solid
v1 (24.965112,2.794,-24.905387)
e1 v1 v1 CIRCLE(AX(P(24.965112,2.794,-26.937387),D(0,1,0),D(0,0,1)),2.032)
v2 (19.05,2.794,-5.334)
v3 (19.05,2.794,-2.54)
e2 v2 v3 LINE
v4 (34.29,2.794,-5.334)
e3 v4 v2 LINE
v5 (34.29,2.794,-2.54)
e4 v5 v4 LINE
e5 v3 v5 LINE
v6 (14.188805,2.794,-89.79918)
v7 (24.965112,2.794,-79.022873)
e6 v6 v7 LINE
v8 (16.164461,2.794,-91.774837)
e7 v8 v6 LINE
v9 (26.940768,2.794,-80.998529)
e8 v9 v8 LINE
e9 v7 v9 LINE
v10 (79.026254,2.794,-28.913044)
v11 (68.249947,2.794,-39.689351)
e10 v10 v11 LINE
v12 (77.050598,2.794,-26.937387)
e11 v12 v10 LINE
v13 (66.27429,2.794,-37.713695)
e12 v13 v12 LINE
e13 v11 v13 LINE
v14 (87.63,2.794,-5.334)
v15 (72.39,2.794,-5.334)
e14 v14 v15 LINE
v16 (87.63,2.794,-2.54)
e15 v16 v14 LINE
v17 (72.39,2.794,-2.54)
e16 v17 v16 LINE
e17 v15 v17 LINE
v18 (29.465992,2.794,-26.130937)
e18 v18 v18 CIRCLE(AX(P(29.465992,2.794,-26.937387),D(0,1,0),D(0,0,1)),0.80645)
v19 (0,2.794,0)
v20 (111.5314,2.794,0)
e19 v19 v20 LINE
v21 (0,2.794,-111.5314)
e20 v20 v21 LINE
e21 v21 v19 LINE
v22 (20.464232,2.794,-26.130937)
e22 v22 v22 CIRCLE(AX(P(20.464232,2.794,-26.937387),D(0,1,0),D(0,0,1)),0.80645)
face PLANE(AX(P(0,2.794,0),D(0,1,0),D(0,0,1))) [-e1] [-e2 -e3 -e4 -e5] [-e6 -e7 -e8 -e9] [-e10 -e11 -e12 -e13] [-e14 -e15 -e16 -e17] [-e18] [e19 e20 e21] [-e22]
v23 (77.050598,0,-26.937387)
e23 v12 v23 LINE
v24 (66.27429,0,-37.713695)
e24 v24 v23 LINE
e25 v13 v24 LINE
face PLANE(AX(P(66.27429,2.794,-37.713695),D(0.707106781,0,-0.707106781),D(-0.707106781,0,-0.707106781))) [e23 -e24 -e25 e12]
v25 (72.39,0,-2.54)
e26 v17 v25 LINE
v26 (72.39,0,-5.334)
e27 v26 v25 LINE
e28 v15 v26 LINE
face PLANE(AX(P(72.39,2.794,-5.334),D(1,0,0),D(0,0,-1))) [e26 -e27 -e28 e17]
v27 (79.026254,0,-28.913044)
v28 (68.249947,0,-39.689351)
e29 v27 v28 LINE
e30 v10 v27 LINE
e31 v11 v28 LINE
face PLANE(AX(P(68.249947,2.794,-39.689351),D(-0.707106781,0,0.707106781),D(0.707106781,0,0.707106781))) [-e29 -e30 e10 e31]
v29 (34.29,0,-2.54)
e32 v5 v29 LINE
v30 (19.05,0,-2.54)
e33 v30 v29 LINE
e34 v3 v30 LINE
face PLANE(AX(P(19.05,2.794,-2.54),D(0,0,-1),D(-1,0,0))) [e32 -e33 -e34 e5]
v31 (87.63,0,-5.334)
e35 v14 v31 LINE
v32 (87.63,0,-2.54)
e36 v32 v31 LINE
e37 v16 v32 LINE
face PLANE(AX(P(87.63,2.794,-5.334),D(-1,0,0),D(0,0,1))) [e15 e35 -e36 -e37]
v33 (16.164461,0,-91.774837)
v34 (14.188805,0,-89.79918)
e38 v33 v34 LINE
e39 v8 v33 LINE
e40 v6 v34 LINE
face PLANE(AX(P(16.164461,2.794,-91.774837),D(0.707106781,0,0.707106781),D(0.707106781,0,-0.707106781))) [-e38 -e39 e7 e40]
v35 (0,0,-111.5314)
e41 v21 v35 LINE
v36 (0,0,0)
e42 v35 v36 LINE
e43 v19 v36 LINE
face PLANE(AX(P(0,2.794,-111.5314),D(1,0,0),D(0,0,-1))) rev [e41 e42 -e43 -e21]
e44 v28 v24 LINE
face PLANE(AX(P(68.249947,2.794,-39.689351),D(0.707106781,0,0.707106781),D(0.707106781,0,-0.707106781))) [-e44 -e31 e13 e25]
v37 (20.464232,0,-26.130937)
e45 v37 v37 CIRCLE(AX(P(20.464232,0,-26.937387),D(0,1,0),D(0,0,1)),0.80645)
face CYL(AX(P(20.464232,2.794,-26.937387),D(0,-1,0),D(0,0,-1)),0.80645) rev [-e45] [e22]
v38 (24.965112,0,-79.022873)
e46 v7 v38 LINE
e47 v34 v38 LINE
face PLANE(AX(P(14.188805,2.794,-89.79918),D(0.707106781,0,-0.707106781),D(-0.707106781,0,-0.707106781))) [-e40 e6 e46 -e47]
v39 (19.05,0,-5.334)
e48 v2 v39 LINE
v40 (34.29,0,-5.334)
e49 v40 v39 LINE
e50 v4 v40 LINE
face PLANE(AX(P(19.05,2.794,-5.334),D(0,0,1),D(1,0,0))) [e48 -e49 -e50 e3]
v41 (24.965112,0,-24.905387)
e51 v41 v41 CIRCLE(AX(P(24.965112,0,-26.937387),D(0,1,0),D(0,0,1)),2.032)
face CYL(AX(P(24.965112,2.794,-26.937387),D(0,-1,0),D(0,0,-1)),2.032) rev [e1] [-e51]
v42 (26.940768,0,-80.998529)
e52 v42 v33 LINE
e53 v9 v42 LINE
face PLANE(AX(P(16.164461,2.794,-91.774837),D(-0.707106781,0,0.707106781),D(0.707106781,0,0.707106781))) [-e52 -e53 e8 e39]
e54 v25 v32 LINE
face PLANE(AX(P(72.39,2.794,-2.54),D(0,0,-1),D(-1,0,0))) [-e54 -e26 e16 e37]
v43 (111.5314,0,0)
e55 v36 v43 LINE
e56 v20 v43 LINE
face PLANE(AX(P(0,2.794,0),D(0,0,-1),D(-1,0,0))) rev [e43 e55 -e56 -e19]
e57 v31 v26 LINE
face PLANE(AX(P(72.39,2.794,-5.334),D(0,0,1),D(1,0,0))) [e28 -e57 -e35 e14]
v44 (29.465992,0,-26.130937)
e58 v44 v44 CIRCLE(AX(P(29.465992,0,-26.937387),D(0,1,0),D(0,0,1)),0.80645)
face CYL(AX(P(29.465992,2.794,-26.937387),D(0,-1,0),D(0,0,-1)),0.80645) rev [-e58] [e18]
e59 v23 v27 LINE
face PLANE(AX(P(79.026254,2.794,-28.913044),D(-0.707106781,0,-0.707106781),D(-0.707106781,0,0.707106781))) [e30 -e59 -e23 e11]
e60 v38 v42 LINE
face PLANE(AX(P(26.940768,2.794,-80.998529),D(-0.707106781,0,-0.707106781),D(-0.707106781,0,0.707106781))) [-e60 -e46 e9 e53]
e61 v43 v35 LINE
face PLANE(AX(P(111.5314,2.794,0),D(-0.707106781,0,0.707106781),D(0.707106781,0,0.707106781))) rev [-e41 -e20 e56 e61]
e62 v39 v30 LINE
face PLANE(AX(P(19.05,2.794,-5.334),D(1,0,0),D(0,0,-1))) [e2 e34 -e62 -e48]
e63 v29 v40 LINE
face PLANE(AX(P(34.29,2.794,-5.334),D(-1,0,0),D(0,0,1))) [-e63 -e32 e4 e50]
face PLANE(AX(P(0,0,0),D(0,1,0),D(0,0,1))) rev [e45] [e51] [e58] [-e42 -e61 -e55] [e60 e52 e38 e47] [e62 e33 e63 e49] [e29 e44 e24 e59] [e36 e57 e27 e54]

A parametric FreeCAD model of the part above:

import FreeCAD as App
import Part
import Sketcher
Q = App.Units.Quantity

doc = App.newDocument("Part")
body = doc.addObject("PartDesign::Body", "Body")

# Sketch on XZ plane
sketch1 = body.newObject("Sketcher::SketchObject", "Sketch")
sketch1.AttachmentSupport = (doc.getObject("XZ_Plane"), [""])
sketch1.MapMode = "FlatFace"
sketch1.addGeometry([
    Part.LineSegment(App.Vector(0, 0, 0), App.Vector(111.5, 0, 0)),  # 0
    Part.LineSegment(App.Vector(111.5, 0, 0), App.Vector(0, -111.5, 0)),  # 1
    Part.LineSegment(App.Vector(0, -111.5, 0), App.Vector(0, 0, 0)),  # 2
    Part.LineSegment(App.Vector(34.3, -2.5, 0), App.Vector(19.1, -2.5, 0)),  # 3
    Part.LineSegment(App.Vector(19.1, -2.5, 0), App.Vector(19.1, -5.3, 0)),  # 4
    Part.LineSegment(App.Vector(19.1, -5.3, 0), App.Vector(34.3, -5.3, 0)),  # 5
    Part.LineSegment(App.Vector(34.3, -5.3, 0), App.Vector(34.3, -2.5, 0)),  # 6
    Part.Circle(App.Vector(20.5, -26.9, 0), App.Vector(0, 0, 1), 0.8),  # 7
    Part.Circle(App.Vector(25, -26.9, 0), App.Vector(0, 0, 1), 2),  # 8
    Part.Circle(App.Vector(29.5, -26.9, 0), App.Vector(0, 0, 1), 0.8),  # 9
    Part.LineSegment(App.Vector(87.6, -2.5, 0), App.Vector(72.4, -2.5, 0)),  # 10
    Part.LineSegment(App.Vector(72.4, -2.5, 0), App.Vector(72.4, -5.3, 0)),  # 11
    Part.LineSegment(App.Vector(72.4, -5.3, 0), App.Vector(87.6, -5.3, 0)),  # 12
    Part.LineSegment(App.Vector(87.6, -5.3, 0), App.Vector(87.6, -2.5, 0)),  # 13
    Part.LineSegment(App.Vector(66.3, -37.7, 0), App.Vector(68.2, -39.7, 0)),  # 14
    Part.LineSegment(App.Vector(68.2, -39.7, 0), App.Vector(79, -28.9, 0)),  # 15
    Part.LineSegment(App.Vector(79, -28.9, 0), App.Vector(77.1, -26.9, 0)),  # 16
    Part.LineSegment(App.Vector(77.1, -26.9, 0), App.Vector(66.3, -37.7, 0)),  # 17
    Part.LineSegment(App.Vector(14.2, -89.8, 0), App.Vector(16.2, -91.8, 0)),  # 18
    Part.LineSegment(App.Vector(16.2, -91.8, 0), App.Vector(26.9, -81, 0)),  # 19
    Part.LineSegment(App.Vector(26.9, -81, 0), App.Vector(25, -79, 0)),  # 20
    Part.LineSegment(App.Vector(25, -79, 0), App.Vector(14.2, -89.8, 0)),  # 21
], False)
sketch1.addConstraint([
    Sketcher.Constraint("Coincident", 0, 2, 1, 1),
    Sketcher.Constraint("Coincident", 1, 2, 2, 1),
    Sketcher.Constraint("Coincident", 2, 2, 0, 1),
    Sketcher.Constraint("Coincident", 3, 2, 4, 1),
    Sketcher.Constraint("Coincident", 4, 2, 5, 1),
    Sketcher.Constraint("Coincident", 5, 2, 6, 1),
    Sketcher.Constraint("Coincident", 6, 2, 3, 1),
    Sketcher.Constraint("Coincident", 10, 2, 11, 1),
    Sketcher.Constraint("Coincident", 11, 2, 12, 1),
    Sketcher.Constraint("Coincident", 12, 2, 13, 1),
    Sketcher.Constraint("Coincident", 13, 2, 10, 1),
    Sketcher.Constraint("Coincident", 14, 2, 15, 1),
    Sketcher.Constraint("Coincident", 15, 2, 16, 1),
    Sketcher.Constraint("Coincident", 16, 2, 17, 1),
    Sketcher.Constraint("Coincident", 17, 2, 14, 1),
    Sketcher.Constraint("Coincident", 18, 2, 19, 1),
    Sketcher.Constraint("Coincident", 19, 2, 20, 1),
    Sketcher.Constraint("Coincident", 20, 2, 21, 1),
    Sketcher.Constraint("Coincident", 21, 2, 18, 1),
    Sketcher.Constraint("Horizontal", 0),
    Sketcher.Constraint("Vertical", 2),
    Sketcher.Constraint("Horizontal", 3),
    Sketcher.Constraint("Vertical", 4),
    Sketcher.Constraint("Horizontal", 5),
    Sketcher.Constraint("Vertical", 6),
    Sketcher.Constraint("Horizontal", 10),
    Sketcher.Constraint("Vertical", 11),
    Sketcher.Constraint("Horizontal", 12),
    Sketcher.Constraint("Vertical", 13),
    Sketcher.Constraint("Coincident", 2, 2, -1, 1),
    Sketcher.Constraint("Equal", 7, 9),
    Sketcher.Constraint("Perpendicular", 1, 14),
    Sketcher.Constraint("Perpendicular", 14, 15),
    Sketcher.Constraint("Perpendicular", 15, 16),
    Sketcher.Constraint("Perpendicular", 16, 17),
    Sketcher.Constraint("Perpendicular", 17, 18),
    Sketcher.Constraint("Perpendicular", 18, 19),
    Sketcher.Constraint("Perpendicular", 19, 20),
    Sketcher.Constraint("Perpendicular", 20, 21),
    Sketcher.Constraint("Horizontal", 7, 3, 8, 3),
    Sketcher.Constraint("Horizontal", 8, 3, 9, 3),
    Sketcher.Constraint("Horizontal", 6, 2, 10, 2),
    Sketcher.Constraint("Horizontal", 5, 2, 11, 2),
    Sketcher.Constraint("Horizontal", 9, 3, 16, 2),
    Sketcher.Constraint("Vertical", 8, 3, 20, 2),
    Sketcher.Constraint("Equal", 5, 10),
    Sketcher.Constraint("Equal", 0, 2),
    Sketcher.Constraint("Equal", 16, 18),
    Sketcher.Constraint("Equal", 17, 19),
    Sketcher.Constraint("Diameter", 8, Q("0.16 in")),
    Sketcher.Constraint("DistanceX", 3, 2, 3, 1, Q("0.6 in")),
    Sketcher.Constraint("Distance", 15, Q("0.6 in")),
    Sketcher.Constraint("Diameter", 7, Q("0.0635 in")),
    Sketcher.Constraint("DistanceY", 4, 2, 4, 1, Q("0.11 in")),
    Sketcher.Constraint("DistanceY", 3, 2, -1, 1, Q("0.1 in")),
    Sketcher.Constraint("DistanceX", 6, 2, 10, 2, Q("1.5 in")),
    Sketcher.Constraint("Distance", 14, Q("0.11 in")),
    Sketcher.Constraint("DistanceX", 0, 1, 0, 2, Q("4.391 in")),
    Sketcher.Constraint("DistanceX", -1, 1, 3, 2, Q("0.75 in")),
    Sketcher.Constraint("DistanceX", 7, 3, 8, 3, Q("0.1772 in")),
    Sketcher.Constraint("DistanceX", 8, 3, 9, 3, Q("0.1772 in")),
    Sketcher.Constraint("DistanceY", 14, 2, -1, 1, Q("39.689351 mm")),
    Sketcher.Constraint("DistanceX", -1, 1, 17, 2, Q("66.27429 mm")),
    Sketcher.Constraint("DistanceX", -1, 1, 18, 2, Q("16.164461 mm")),
    Sketcher.Constraint("DistanceY", 19, 2, -1, 1, Q("80.998529 mm")),
])
pad1 = body.newObject("PartDesign::Pad", "Pad")
pad1.Profile = sketch1
pad1.Length = Q("0.11 in")
pad1.Reversed = True

doc.recompute()
